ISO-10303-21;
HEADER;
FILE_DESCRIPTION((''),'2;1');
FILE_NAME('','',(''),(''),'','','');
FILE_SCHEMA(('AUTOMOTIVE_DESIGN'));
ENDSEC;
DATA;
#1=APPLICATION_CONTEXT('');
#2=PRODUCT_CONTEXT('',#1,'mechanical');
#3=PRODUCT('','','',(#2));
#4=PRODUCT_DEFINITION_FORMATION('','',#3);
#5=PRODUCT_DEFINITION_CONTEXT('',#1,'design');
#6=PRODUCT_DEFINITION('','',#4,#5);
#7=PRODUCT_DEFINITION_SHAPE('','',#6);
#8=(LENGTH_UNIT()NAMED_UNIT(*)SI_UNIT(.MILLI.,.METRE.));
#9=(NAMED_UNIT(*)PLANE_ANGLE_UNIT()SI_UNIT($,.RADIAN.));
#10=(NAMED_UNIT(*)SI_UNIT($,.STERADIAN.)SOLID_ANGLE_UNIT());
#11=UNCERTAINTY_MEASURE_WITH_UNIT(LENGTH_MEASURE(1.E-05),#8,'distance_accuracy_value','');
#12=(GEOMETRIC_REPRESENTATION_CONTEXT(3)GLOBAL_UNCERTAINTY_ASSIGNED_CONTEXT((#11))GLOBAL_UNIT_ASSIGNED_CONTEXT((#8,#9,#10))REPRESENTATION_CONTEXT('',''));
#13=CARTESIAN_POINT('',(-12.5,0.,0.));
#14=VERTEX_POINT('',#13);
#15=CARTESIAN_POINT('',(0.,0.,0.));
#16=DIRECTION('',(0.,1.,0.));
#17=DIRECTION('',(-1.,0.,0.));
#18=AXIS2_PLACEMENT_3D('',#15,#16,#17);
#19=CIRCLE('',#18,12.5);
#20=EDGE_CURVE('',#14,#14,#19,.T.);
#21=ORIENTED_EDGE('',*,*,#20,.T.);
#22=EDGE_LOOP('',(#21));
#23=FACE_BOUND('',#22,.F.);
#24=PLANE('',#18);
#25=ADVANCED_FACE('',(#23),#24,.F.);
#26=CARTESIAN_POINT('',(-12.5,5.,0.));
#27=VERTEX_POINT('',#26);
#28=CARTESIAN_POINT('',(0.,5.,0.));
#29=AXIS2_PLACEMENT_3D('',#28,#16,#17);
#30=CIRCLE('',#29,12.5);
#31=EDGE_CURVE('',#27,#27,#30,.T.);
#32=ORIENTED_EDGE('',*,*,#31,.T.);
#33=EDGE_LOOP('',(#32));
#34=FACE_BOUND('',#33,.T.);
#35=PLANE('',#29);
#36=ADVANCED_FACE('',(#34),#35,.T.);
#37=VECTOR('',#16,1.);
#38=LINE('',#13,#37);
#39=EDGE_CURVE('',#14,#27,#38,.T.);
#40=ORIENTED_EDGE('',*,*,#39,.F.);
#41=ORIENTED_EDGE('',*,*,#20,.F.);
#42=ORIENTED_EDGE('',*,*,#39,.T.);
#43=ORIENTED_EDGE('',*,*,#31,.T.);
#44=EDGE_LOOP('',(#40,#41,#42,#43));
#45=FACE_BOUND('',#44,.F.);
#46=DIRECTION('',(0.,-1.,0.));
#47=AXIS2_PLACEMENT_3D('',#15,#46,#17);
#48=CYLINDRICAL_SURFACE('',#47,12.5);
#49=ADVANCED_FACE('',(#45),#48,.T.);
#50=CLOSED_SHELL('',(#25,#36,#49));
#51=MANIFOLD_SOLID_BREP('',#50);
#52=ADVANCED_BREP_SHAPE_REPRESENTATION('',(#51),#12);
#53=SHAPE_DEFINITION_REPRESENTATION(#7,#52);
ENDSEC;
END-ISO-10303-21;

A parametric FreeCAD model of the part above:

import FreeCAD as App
import Part
import Sketcher

V = App.Vector
Q = App.Units.Quantity

doc = App.newDocument("Part")
body = doc.addObject("PartDesign::Body", "Body")

# Sketch on XZ plane
sketch1 = body.newObject("Sketcher::SketchObject", "Sketch")
sketch1.AttachmentSupport = (doc.getObject("XZ_Plane"), [""])
sketch1.MapMode = "FlatFace"
sketch1.addGeometry(Part.Circle(V(0, 0, 0), V(0, 0, 1), 12), False)
sketch1.addConstraint([
    Sketcher.Constraint("Coincident", 0, 3, -1, 1),
    Sketcher.Constraint("Diameter", 0, Q("25 mm")),
])
pad1 = body.newObject("PartDesign::Pad", "Pad")
pad1.Profile = sketch1
pad1.Length = 5
pad1.Reversed = True

doc.recompute()
